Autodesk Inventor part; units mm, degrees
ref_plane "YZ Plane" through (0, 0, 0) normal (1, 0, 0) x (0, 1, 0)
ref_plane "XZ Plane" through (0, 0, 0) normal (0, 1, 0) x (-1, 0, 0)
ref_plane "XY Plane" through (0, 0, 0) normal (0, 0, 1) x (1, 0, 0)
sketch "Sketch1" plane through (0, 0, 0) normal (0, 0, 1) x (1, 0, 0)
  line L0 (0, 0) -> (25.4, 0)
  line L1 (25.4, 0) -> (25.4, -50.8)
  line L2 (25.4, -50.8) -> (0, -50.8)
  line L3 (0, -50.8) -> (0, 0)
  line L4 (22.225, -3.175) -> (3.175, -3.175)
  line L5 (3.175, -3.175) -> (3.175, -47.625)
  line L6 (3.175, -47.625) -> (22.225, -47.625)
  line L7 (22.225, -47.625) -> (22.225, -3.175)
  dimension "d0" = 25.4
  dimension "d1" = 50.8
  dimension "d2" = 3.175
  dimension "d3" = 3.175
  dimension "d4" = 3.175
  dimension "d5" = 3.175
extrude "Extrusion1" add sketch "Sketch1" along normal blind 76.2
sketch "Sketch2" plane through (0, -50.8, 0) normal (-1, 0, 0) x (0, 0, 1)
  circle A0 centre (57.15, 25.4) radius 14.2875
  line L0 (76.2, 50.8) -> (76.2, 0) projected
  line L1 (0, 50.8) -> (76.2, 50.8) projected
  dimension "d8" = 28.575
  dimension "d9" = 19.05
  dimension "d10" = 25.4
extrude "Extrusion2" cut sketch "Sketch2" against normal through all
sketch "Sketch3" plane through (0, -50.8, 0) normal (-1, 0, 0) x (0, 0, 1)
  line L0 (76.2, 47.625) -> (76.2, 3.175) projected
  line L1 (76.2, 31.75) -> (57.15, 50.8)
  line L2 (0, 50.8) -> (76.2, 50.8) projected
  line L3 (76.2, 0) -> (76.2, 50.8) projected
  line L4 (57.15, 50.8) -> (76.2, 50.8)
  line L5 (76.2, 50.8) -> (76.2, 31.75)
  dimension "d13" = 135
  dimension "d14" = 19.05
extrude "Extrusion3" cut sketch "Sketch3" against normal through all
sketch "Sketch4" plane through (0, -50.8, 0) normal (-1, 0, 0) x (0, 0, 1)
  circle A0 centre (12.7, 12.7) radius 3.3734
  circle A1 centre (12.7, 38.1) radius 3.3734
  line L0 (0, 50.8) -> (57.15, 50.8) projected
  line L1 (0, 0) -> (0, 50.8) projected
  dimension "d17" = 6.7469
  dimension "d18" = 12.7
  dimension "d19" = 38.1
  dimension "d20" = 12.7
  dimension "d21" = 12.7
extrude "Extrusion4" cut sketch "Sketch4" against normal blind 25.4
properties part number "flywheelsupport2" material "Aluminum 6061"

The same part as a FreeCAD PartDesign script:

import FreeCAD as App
import Part
import Sketcher
from FreeCAD import Vector
Q = App.Units.Quantity


def add_polygon(sketch, points):
    """Adds a closed chain of lines whose ends are joined by coincident constraints."""
    first, n = sketch.GeometryCount, len(points)
    for a, b in zip(points, points[1:] + points[:1]):
        sketch.addGeometry(Part.LineSegment(App.Vector(*a, 0), App.Vector(*b, 0)), False)
    for i in range(n):
        sketch.addConstraint(Sketcher.Constraint("Coincident", first + i, 2, first + (i + 1) % n, 1))

doc = App.newDocument("Part")
params = doc.addObject("Spreadsheet::Sheet", "Params")
for row, (alias, value) in enumerate([
    ("sketch1_width", "1 in"),
    ("sketch1_height", "2 in"),
    ("pad1_length", "3 in"),
    ("sketch2_diameter", "1.125 in"),
    ("sketch3_width", "0.75 in"),
    ("sketch4_diameter", "0.265622 in"),
    ("pocket3_length", "1 in"),
], start=1):
    params.set(f"A{row}", alias)
    params.set(f"B{row}", "=" + value)
    params.setAlias(f"B{row}", alias)

body = doc.addObject("PartDesign::Body", "Body")

sketch1 = body.newObject("Sketcher::SketchObject", "Sketch")
sketch1.AttachmentSupport = (doc.getObject("XY_Plane"), [""])
sketch1.MapMode = "FlatFace"
add_polygon(sketch1, [(25.4, 0), (0, 0), (0, -50.8), (25.4, -50.8)])
add_polygon(sketch1, [(3.175, -3.175), (22.225, -3.175), (22.225, -47.625), (3.175, -47.625)])
sketch1.addConstraint([
    Sketcher.Constraint("Horizontal", 0),
    Sketcher.Constraint("Vertical", 1),
    Sketcher.Constraint("Horizontal", 2),
    Sketcher.Constraint("Vertical", 3),
    Sketcher.Constraint("Horizontal", 4),
    Sketcher.Constraint("Vertical", 5),
    Sketcher.Constraint("Horizontal", 6),
    Sketcher.Constraint("Vertical", 7),
    Sketcher.Constraint("Coincident", 0, 2, -1, 1),
    Sketcher.Constraint("DistanceX", 0, 2, 0, 1, Q("1 in")),
    Sketcher.Constraint("DistanceY", 1, 2, 1, 1, Q("2 in")),
    Sketcher.Constraint("DistanceY", 4, 2, -1, 1, Q("0.125 in")),
    Sketcher.Constraint("DistanceX", -1, 1, 6, 2, Q("0.125 in")),
    Sketcher.Constraint("DistanceX", 4, 2, 3, 2, Q("0.125 in")),
    Sketcher.Constraint("DistanceY", 2, 2, 5, 2, Q("0.125 in")),
])
sketch1.setExpression("Constraints[17]", "Params.sketch1_width")
sketch1.setExpression("Constraints[18]", "Params.sketch1_height")
pad1 = body.newObject("PartDesign::Pad", "Pad")
pad1.Profile = sketch1
pad1.setExpression("Length", "Params.pad1_length")

sketch2 = body.newObject("Sketcher::SketchObject", "Sketch001")
sketch2.AttachmentSupport = (doc.getObject("YZ_Plane"), [""])
sketch2.MapMode = "FlatFace"
sketch2.addGeometry(Part.Circle(Vector(-25.4, 57.15, 0), Vector(0, 0, 1), 14.2875), False)
sketch2.addConstraint([
    Sketcher.Constraint("Diameter", 0, Q("1.125 in")),
    Sketcher.Constraint("DistanceX", 0, 3, -1, 1, Q("1 in")),
    Sketcher.Constraint("DistanceY", -1, 1, 0, 3, Q("2.25 in")),
])
sketch2.setExpression("Constraints[0]", "Params.sketch2_diameter")
pocket1 = body.newObject("PartDesign::Pocket", "Pocket")
pocket1.Profile = sketch2
pocket1.Type = "ThroughAll"
pocket1.Reversed = True

sketch3 = body.newObject("Sketcher::SketchObject", "Sketch002")
sketch3.AttachmentSupport = (doc.getObject("YZ_Plane"), [""])
sketch3.MapMode = "FlatFace"
add_polygon(sketch3, [(-19.05, 76.2), (0, 76.2), (0, 57.15)])
sketch3.addConstraint([
    Sketcher.Constraint("Horizontal", 0),
    Sketcher.Constraint("Vertical", 1),
    Sketcher.Constraint("PointOnObject", 0, 2, -2),
    Sketcher.Constraint("Equal", 0, 1),
    Sketcher.Constraint("DistanceX", 0, 1, 0, 2, Q("0.75 in")),
    Sketcher.Constraint("DistanceY", -1, 1, 0, 2, Q("3 in")),
])
sketch3.setExpression("Constraints[7]", "Params.sketch3_width")
pocket2 = body.newObject("PartDesign::Pocket", "Pocket001")
pocket2.Profile = sketch3
pocket2.Type = "ThroughAll"
pocket2.Reversed = True

sketch4 = body.newObject("Sketcher::SketchObject", "Sketch003")
sketch4.AttachmentSupport = (doc.getObject("YZ_Plane"), [""])
sketch4.MapMode = "FlatFace"
sketch4.addGeometry([
    Part.Circle(Vector(-38.1, 12.7, 0), Vector(0, 0, 1), 3.3734),
    Part.Circle(Vector(-12.7, 12.7, 0), Vector(0, 0, 1), 3.3734),
], False)
sketch4.addConstraint([
    Sketcher.Constraint("Equal", 0, 1),
    Sketcher.Constraint("Horizontal", 0, 3, 1, 3),
    Sketcher.Constraint("Diameter", 0, Q("0.265622 in")),
    Sketcher.Constraint("DistanceX", 0, 3, -1, 1, Q("1.5 in")),
    Sketcher.Constraint("DistanceY", -1, 1, 0, 3, Q("0.5 in")),
    Sketcher.Constraint("DistanceX", 1, 3, -1, 1, Q("0.5 in")),
])
sketch4.setExpression("Constraints[2]", "Params.sketch4_diameter")
pocket3 = body.newObject("PartDesign::Pocket", "Pocket002")
pocket3.Profile = sketch4
pocket3.setExpression("Length", "Params.pocket3_length")
pocket3.Reversed = True

doc.recompute()
